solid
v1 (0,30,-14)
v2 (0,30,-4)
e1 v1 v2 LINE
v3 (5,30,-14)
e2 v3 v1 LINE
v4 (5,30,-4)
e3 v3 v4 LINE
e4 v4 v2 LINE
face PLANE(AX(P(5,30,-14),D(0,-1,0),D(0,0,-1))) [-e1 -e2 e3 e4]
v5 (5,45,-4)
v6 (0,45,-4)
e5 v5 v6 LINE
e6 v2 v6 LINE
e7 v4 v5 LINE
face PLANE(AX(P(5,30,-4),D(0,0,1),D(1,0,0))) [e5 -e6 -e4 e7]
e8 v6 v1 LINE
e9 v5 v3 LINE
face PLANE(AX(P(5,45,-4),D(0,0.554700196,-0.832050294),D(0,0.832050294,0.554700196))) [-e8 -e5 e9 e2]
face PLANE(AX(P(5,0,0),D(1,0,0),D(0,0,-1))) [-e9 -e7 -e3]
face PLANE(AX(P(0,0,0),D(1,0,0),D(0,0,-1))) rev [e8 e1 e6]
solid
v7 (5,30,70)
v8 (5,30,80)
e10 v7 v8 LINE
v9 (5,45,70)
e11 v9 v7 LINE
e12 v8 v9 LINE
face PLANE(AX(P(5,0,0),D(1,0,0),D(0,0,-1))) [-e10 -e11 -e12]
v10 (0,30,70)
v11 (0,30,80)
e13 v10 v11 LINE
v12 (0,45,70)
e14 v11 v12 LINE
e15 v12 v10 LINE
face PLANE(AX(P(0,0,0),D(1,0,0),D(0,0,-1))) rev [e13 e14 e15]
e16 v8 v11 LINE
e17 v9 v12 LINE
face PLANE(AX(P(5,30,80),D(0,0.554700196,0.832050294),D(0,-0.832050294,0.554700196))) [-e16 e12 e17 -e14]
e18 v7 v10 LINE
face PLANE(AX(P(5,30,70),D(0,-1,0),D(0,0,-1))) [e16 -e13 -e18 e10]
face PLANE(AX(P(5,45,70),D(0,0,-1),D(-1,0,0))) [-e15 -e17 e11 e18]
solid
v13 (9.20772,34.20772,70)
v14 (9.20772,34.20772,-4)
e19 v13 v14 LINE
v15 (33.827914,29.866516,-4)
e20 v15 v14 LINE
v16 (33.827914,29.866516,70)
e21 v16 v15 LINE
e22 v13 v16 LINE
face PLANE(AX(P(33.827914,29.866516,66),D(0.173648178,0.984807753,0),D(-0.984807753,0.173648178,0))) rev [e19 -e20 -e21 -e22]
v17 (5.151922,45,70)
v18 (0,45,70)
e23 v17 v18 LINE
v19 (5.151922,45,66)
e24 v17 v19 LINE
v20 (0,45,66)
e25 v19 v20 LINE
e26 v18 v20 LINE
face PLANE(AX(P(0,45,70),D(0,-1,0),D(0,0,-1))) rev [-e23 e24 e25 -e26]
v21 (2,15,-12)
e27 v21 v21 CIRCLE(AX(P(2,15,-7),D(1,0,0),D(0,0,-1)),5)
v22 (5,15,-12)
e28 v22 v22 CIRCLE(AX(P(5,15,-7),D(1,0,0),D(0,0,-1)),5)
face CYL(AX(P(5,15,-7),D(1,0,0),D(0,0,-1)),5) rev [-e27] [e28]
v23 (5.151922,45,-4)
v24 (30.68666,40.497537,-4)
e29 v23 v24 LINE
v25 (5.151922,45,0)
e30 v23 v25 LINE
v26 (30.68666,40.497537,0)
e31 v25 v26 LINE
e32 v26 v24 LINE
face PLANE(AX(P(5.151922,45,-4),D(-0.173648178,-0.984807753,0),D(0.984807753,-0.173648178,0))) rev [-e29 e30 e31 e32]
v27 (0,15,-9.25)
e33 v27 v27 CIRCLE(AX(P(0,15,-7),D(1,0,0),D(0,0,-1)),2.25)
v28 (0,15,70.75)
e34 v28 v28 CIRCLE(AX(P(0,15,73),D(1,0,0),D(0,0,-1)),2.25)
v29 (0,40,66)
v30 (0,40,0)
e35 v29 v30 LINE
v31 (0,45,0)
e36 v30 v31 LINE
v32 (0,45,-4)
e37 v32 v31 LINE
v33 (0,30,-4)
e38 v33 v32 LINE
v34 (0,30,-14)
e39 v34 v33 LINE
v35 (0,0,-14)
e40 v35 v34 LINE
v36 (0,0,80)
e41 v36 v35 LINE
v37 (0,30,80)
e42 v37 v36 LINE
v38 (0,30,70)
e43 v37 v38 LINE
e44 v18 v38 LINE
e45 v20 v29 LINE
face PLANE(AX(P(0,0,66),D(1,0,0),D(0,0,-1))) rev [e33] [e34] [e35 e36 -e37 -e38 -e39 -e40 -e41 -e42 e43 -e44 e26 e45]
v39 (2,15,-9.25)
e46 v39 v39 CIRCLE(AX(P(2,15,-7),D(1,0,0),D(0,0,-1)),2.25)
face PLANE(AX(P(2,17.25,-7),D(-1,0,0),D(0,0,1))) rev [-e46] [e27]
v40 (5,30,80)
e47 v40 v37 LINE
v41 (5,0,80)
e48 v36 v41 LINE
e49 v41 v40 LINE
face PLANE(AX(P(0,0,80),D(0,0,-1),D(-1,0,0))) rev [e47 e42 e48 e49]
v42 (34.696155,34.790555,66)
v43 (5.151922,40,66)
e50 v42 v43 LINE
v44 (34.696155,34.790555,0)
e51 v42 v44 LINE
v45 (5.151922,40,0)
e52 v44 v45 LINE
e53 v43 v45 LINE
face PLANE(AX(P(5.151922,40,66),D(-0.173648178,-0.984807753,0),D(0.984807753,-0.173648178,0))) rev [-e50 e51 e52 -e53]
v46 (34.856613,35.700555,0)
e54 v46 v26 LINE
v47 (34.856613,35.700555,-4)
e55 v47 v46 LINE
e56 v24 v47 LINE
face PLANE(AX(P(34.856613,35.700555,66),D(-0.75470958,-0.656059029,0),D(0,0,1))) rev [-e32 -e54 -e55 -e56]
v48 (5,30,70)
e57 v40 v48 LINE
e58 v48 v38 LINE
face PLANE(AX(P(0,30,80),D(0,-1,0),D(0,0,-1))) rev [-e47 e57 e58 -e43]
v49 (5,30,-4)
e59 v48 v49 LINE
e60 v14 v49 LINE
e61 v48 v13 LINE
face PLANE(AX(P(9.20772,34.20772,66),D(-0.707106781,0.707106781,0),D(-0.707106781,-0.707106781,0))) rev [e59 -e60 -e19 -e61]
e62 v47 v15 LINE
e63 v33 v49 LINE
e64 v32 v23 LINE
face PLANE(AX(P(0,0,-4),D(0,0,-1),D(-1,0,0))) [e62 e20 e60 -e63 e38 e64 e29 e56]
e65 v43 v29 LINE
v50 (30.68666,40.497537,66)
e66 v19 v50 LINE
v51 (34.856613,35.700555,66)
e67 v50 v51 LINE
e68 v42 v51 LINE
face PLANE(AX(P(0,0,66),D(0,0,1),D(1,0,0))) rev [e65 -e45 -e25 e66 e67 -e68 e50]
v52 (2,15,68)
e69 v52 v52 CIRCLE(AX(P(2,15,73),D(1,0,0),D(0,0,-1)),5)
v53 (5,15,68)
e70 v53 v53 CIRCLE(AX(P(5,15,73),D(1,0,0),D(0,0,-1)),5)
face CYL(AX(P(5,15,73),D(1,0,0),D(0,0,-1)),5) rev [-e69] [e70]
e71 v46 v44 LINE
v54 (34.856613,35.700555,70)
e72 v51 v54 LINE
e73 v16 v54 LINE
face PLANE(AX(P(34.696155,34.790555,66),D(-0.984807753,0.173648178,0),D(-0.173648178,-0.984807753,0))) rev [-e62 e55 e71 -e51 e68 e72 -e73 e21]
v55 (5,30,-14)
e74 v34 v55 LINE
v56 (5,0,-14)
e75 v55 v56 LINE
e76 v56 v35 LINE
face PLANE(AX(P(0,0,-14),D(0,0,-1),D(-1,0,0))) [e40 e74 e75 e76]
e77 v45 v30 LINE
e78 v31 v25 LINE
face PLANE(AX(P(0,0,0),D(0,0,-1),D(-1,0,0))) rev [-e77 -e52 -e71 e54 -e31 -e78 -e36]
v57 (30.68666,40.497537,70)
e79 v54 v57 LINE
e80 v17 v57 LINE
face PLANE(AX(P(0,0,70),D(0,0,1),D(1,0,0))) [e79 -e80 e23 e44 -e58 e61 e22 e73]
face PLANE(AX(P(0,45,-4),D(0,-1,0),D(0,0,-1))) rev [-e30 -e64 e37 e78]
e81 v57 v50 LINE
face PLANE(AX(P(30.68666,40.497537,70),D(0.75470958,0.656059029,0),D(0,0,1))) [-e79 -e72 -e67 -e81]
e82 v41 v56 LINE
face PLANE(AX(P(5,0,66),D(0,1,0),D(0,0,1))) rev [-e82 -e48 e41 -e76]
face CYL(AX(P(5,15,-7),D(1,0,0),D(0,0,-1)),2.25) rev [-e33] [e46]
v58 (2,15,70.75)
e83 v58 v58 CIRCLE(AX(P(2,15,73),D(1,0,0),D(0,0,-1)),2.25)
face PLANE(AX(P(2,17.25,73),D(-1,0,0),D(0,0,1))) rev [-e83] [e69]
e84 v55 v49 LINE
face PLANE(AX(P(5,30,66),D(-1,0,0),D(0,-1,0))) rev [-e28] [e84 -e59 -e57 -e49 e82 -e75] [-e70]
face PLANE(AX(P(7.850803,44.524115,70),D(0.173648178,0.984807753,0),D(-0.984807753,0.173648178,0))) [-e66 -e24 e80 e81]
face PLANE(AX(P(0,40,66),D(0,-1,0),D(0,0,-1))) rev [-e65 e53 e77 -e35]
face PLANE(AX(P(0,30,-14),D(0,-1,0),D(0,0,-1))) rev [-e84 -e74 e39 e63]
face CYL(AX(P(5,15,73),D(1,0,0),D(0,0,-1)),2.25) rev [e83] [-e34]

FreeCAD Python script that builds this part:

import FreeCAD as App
import Part
import Sketcher
from FreeCAD import Vector
Q = App.Units.Quantity


def edges_at(feature, points):
    """Names of the edges that pass closest to the given points."""
    edges = feature.Shape.Edges
    near = lambda p: min(range(len(edges)), key=lambda i: edges[i].distToShape(Part.Vertex(*p))[0])
    return sorted({f"Edge{near(p) + 1}" for p in points})


def add_polygon(sketch, points):
    """Adds a closed chain of lines whose ends are joined by coincident constraints."""
    first, n = sketch.GeometryCount, len(points)
    for a, b in zip(points, points[1:] + points[:1]):
        sketch.addGeometry(Part.LineSegment(App.Vector(*a, 0), App.Vector(*b, 0)), False)
    for i in range(n):
        sketch.addConstraint(Sketcher.Constraint("Coincident", first + i, 2, first + (i + 1) % n, 1))

doc = App.newDocument("Part")
body = doc.addObject("PartDesign::Body", "Body")

# Sketch on XY plane
sketch1 = body.newObject("Sketcher::SketchObject", "Sketch")
sketch1.AttachmentSupport = (doc.getObject("XY_Plane"), [""])
sketch1.MapMode = "FlatFace"
add_polygon(sketch1, [(0, 40), (0, 0), (5, 0), (5, 30), (9.20772, 34.20772), (33.827914, 29.866516), (34.696155, 34.790555), (5.151922, 40)])  # lines 0-7
sketch1.addConstraint(Sketcher.Constraint("Vertical", 0))
sketch1.addConstraint(Sketcher.Constraint("Horizontal", 1))
sketch1.addConstraint(Sketcher.Constraint("Vertical", 2))
sketch1.addConstraint(Sketcher.Constraint("Horizontal", 7))
sketch1.addConstraint(Sketcher.Constraint("Coincident", 0, 2, -1, 1))
sketch1.addConstraint(Sketcher.Constraint("Perpendicular", 4, 5))
sketch1.addConstraint(Sketcher.Constraint("Perpendicular", 5, 6))
sketch1.addConstraint(Sketcher.Constraint("DistanceX", 1, 1, 1, 2, 5.0))
sketch1.addConstraint(Sketcher.Constraint("DistanceY", 0, 2, 0, 1, 40.0))
sketch1.addConstraint(Sketcher.Constraint("DistanceY", 2, 1, 2, 2, 30.0))
sketch1.addConstraint(Sketcher.Constraint("Angle", 3, Q("45 deg")))
sketch1.addConstraint(Sketcher.Constraint("Angle", 4, Q("-10 deg")))
sketch1.addConstraint(Sketcher.Constraint("Distance", 4, 25.0))
sketch1.addConstraint(Sketcher.Constraint("Distance", 5, 5.0))
sketch1.addConstraint(Sketcher.Constraint("Distance", 6, 30.0))
pad1 = body.newObject("PartDesign::Pad", "Pad")
pad1.Profile = sketch1
pad1.Length = 66

# Sketch on XY plane
sketch2 = body.newObject("Sketcher::SketchObject", "Sketch001")
sketch2.AttachmentSupport = (doc.getObject("XY_Plane"), [""])
sketch2.MapMode = "FlatFace"
sketch2.AttachmentOffset = App.Placement(Vector(0, 0, 66), App.Rotation())
add_polygon(sketch2, [(0, 0), (5, 0), (5, 30), (9.20772, 34.20772), (33.827914, 29.866516), (35.551205, 39.639786), (5.151922, 45), (0, 45)])  # lines 0-7
sketch2.addConstraint(Sketcher.Constraint("Horizontal", 0))
sketch2.addConstraint(Sketcher.Constraint("Vertical", 1))
sketch2.addConstraint(Sketcher.Constraint("Horizontal", 6))
sketch2.addConstraint(Sketcher.Constraint("Vertical", 7))
sketch2.addConstraint(Sketcher.Constraint("Coincident", 7, 2, -1, 1))
sketch2.addConstraint(Sketcher.Constraint("Perpendicular", 3, 4))
sketch2.addConstraint(Sketcher.Constraint("Perpendicular", 4, 5))
sketch2.addConstraint(Sketcher.Constraint("DistanceX", 0, 1, 0, 2, 5.0))
sketch2.addConstraint(Sketcher.Constraint("DistanceY", 1, 1, 1, 2, 30.0))
sketch2.addConstraint(Sketcher.Constraint("DistanceY", 7, 2, 7, 1, 45.0))
sketch2.addConstraint(Sketcher.Constraint("Angle", 2, Q("45 deg")))
sketch2.addConstraint(Sketcher.Constraint("Angle", 3, Q("-10 deg")))
sketch2.addConstraint(Sketcher.Constraint("Distance", 3, 25.0))
sketch2.addConstraint(Sketcher.Constraint("Distance", 4, 9.924039))
sketch2.addConstraint(Sketcher.Constraint("Distance", 5, 30.868241))
pad2 = body.newObject("PartDesign::Pad", "Pad001")
pad2.Profile = sketch2
pad2.Length = 4

# Sketch on XY plane
sketch3 = body.newObject("Sketcher::SketchObject", "Sketch002")
sketch3.AttachmentSupport = (doc.getObject("XY_Plane"), [""])
sketch3.MapMode = "FlatFace"
add_polygon(sketch3, [(5, 0), (0, 0), (0, 45), (5.151922, 45), (35.551205, 39.639786), (33.827914, 29.866516), (9.20772, 34.20772), (5, 30)])  # lines 0-7
sketch3.addConstraint(Sketcher.Constraint("Horizontal", 0))
sketch3.addConstraint(Sketcher.Constraint("Vertical", 1))
sketch3.addConstraint(Sketcher.Constraint("Horizontal", 2))
sketch3.addConstraint(Sketcher.Constraint("Vertical", 7))
sketch3.addConstraint(Sketcher.Constraint("Coincident", 0, 2, -1, 1))
sketch3.addConstraint(Sketcher.Constraint("Perpendicular", 3, 4))
sketch3.addConstraint(Sketcher.Constraint("Perpendicular", 4, 5))
sketch3.addConstraint(Sketcher.Constraint("DistanceX", 0, 2, 0, 1, 5.0))
sketch3.addConstraint(Sketcher.Constraint("DistanceY", 1, 1, 1, 2, 45.0))
sketch3.addConstraint(Sketcher.Constraint("DistanceY", 7, 2, 7, 1, 30.0))
sketch3.addConstraint(Sketcher.Constraint("Angle", 3, Q("-10 deg")))
sketch3.addConstraint(Sketcher.Constraint("Angle", 6, Q("-135 deg")))
sketch3.addConstraint(Sketcher.Constraint("Distance", 5, 25.0))
sketch3.addConstraint(Sketcher.Constraint("Distance", 3, 30.868241))
sketch3.addConstraint(Sketcher.Constraint("Distance", 4, 9.924039))
pad3 = body.newObject("PartDesign::Pad", "Pad002")
pad3.Profile = sketch3
pad3.Length = 4
pad3.Reversed = True

# Sketch on XY plane
sketch4 = body.newObject("Sketcher::SketchObject", "Sketch003")
sketch4.AttachmentSupport = (doc.getObject("XY_Plane"), [""])
sketch4.MapMode = "FlatFace"
sketch4.AttachmentOffset = App.Placement(Vector(0, 0, -4), App.Rotation())
add_polygon(sketch4, [(5, 0), (0, 0), (0, 30), (5, 30)])  # lines 0-3
sketch4.addConstraint(Sketcher.Constraint("Horizontal", 0))
sketch4.addConstraint(Sketcher.Constraint("Vertical", 1))
sketch4.addConstraint(Sketcher.Constraint("Horizontal", 2))
sketch4.addConstraint(Sketcher.Constraint("Vertical", 3))
sketch4.addConstraint(Sketcher.Constraint("Coincident", 0, 2, -1, 1))
sketch4.addConstraint(Sketcher.Constraint("DistanceX", 0, 2, 0, 1, 5.0))
sketch4.addConstraint(Sketcher.Constraint("DistanceY", 1, 1, 1, 2, 30.0))
pad4 = body.newObject("PartDesign::Pad", "Pad003")
pad4.Profile = sketch4
pad4.Length = 10
pad4.Reversed = True

# Sketch on XY plane
sketch5 = body.newObject("Sketcher::SketchObject", "Sketch004")
sketch5.AttachmentSupport = (doc.getObject("XY_Plane"), [""])
sketch5.MapMode = "FlatFace"
sketch5.AttachmentOffset = App.Placement(Vector(0, 0, 70), App.Rotation())
add_polygon(sketch5, [(0, 30), (0, 0), (5, 0), (5, 30)])  # lines 0-3
sketch5.addConstraint(Sketcher.Constraint("Vertical", 0))
sketch5.addConstraint(Sketcher.Constraint("Horizontal", 1))
sketch5.addConstraint(Sketcher.Constraint("Vertical", 2))
sketch5.addConstraint(Sketcher.Constraint("Horizontal", 3))
sketch5.addConstraint(Sketcher.Constraint("Coincident", 0, 2, -1, 1))
sketch5.addConstraint(Sketcher.Constraint("DistanceX", 1, 1, 1, 2, 5.0))
sketch5.addConstraint(Sketcher.Constraint("DistanceY", 0, 2, 0, 1, 30.0))
pad5 = body.newObject("PartDesign::Pad", "Pad004")
pad5.Profile = sketch5
pad5.Length = 10

# Sketch on YZ plane
sketch6 = body.newObject("Sketcher::SketchObject", "Sketch005")
sketch6.AttachmentSupport = (doc.getObject("YZ_Plane"), [""])
sketch6.MapMode = "FlatFace"
sketch6.AttachmentOffset = App.Placement(Vector(0, 0, 5), App.Rotation())
sketch6.addGeometry(Part.Circle(Vector(15, 73, 0), Vector(0, 0, 1), 2.25), False)
sketch6.addGeometry(Part.Circle(Vector(15, -7, 0), Vector(0, 0, 1), 2.25), False)
sketch6.addConstraint(Sketcher.Constraint("Equal", 0, 1))
sketch6.addConstraint(Sketcher.Constraint("Vertical", 0, 3, 1, 3))
sketch6.addConstraint(Sketcher.Constraint("Diameter", 0, 4.5))
sketch6.addConstraint(Sketcher.Constraint("DistanceX", -1, 1, 0, 3, 15.0))
sketch6.addConstraint(Sketcher.Constraint("DistanceY", -1, 1, 0, 3, 73.0))
sketch6.addConstraint(Sketcher.Constraint("DistanceY", 1, 3, -1, 1, 7.0))
doc.recompute()
hole = body.newObject("PartDesign::Hole", "Hole")
hole.Profile = sketch6
hole.ThreadType = "None"
hole.Diameter = 4.5
hole.DepthType = "Dimension"
hole.Depth = 45
hole.DrillPoint = "Angled"
hole.DrillPointAngle = 118
hole.HoleCutType = "Counterbore"
hole.HoleCutDiameter = 10
hole.HoleCutDepth = 3
doc.recompute()

chamfer = body.newObject("PartDesign::Chamfer", "Chamfer")
chamfer.Base = (hole, edges_at(hole, [(35.551, 39.64, 68)]))
chamfer.ChamferType = "Two distances"
chamfer.Size = 4
chamfer.Size2 = 4.939589
chamfer.FlipDirection = True
doc.recompute()

chamfer2 = body.newObject("PartDesign::Chamfer", "Chamfer001")
chamfer2.Base = (chamfer, edges_at(chamfer, [(35.551, 39.64, -2)]))
chamfer2.ChamferType = "Two distances"
chamfer2.Size = 4
chamfer2.Size2 = 4.939589
body2 = doc.addObject("PartDesign::Body", "Body001")

# Sketch on YZ plane
sketch7 = body2.newObject("Sketcher::SketchObject", "Sketch006")
sketch7.AttachmentSupport = (doc.getObject("YZ_Plane001"), [""])
sketch7.MapMode = "FlatFace"
add_polygon(sketch7, [(45, -4), (30, -14), (30, -4)])  # lines 0-2
sketch7.addConstraint(Sketcher.Constraint("Vertical", 1))
sketch7.addConstraint(Sketcher.Constraint("Horizontal", 2))
sketch7.addConstraint(Sketcher.Constraint("DistanceX", 2, 1, 2, 2, 15.0))
sketch7.addConstraint(Sketcher.Constraint("DistanceY", 1, 1, 1, 2, 10.0))
sketch7.addConstraint(Sketcher.Constraint("DistanceX", -1, 1, 0, 2, 30.0))
sketch7.addConstraint(Sketcher.Constraint("DistanceY", 0, 2, -1, 1, 14.0))
pad6 = body2.newObject("PartDesign::Pad", "Pad005")
pad6.Profile = sketch7
pad6.Length = 5
body3 = doc.addObject("PartDesign::Body", "Body002")

# Sketch on YZ plane
sketch8 = body3.newObject("Sketcher::SketchObject", "Sketch007")
sketch8.AttachmentSupport = (doc.getObject("YZ_Plane002"), [""])
sketch8.MapMode = "FlatFace"
add_polygon(sketch8, [(45, 70), (30, 70), (30, 80)])  # lines 0-2
sketch8.addConstraint(Sketcher.Constraint("Horizontal", 0))
sketch8.addConstraint(Sketcher.Constraint("Vertical", 1))
sketch8.addConstraint(Sketcher.Constraint("DistanceX", 0, 2, 0, 1, 15.0))
sketch8.addConstraint(Sketcher.Constraint("DistanceY", 1, 1, 1, 2, 10.0))
sketch8.addConstraint(Sketcher.Constraint("DistanceX", -1, 1, 0, 2, 30.0))
sketch8.addConstraint(Sketcher.Constraint("DistanceY", -1, 1, 0, 2, 70.0))
pad7 = body3.newObject("PartDesign::Pad", "Pad006")
pad7.Profile = sketch8
pad7.Length = 5

doc.recompute()
